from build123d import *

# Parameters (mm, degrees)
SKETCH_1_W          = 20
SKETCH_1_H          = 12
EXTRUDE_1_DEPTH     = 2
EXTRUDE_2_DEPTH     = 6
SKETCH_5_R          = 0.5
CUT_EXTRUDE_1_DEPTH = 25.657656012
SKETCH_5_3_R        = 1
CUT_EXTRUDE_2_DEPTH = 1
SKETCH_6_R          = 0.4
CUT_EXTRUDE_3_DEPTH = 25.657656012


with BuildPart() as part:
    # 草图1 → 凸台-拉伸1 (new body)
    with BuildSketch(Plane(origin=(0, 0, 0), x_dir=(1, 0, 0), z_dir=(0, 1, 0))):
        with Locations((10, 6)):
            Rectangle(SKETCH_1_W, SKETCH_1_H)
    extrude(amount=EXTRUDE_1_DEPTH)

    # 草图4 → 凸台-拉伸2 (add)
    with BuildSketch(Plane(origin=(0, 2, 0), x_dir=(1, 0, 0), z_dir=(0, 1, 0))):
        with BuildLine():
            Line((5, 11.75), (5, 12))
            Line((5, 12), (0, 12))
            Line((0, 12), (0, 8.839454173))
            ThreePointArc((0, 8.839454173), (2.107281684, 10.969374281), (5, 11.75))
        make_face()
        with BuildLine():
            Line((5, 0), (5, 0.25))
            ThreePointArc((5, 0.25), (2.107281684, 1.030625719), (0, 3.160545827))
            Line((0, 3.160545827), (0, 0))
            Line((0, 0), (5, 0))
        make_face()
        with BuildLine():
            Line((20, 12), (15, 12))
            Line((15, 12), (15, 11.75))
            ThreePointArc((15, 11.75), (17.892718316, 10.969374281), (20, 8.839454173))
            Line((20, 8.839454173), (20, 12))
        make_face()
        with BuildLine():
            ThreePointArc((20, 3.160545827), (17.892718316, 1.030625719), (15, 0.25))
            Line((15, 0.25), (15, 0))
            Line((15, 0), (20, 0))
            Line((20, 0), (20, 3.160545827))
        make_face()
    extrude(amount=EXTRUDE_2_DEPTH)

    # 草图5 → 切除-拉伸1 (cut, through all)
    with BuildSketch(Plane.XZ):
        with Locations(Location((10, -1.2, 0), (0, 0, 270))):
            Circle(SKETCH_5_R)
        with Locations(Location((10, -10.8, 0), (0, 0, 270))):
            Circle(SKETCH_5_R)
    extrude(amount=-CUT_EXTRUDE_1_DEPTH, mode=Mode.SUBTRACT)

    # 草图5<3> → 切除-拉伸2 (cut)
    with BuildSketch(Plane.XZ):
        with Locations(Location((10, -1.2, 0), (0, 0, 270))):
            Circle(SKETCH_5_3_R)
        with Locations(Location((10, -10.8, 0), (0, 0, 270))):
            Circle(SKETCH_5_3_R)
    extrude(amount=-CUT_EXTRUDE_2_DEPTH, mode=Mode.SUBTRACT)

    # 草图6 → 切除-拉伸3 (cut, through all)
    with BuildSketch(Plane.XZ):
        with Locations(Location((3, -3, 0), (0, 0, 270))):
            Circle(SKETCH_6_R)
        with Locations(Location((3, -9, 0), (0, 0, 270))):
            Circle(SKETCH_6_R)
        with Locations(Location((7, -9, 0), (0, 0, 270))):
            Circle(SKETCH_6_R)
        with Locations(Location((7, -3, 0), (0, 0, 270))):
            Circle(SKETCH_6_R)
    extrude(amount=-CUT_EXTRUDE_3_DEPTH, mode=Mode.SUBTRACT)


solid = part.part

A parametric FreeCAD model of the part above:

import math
import FreeCAD as App
import Part
import Sketcher
Q = App.Units.Quantity

doc = App.newDocument("Part")
body = doc.addObject("PartDesign::Body", "Body")

sketch1 = body.newObject("Sketcher::SketchObject", "Sketch")
sketch1.AttachmentSupport = (doc.getObject("XZ_Plane"), [""])
sketch1.MapMode = "FlatFace"
sketch1.addGeometry([
    Part.LineSegment(App.Vector(0, -12, 0), App.Vector(0, 0, 0)),
    Part.LineSegment(App.Vector(0, 0, 0), App.Vector(20, 0, 0)),
    Part.LineSegment(App.Vector(20, 0, 0), App.Vector(20, -12, 0)),
    Part.LineSegment(App.Vector(20, -12, 0), App.Vector(0, -12, 0)),
], False)
sketch1.addConstraint([
    Sketcher.Constraint("Coincident", 0, 2, 1, 1),
    Sketcher.Constraint("Coincident", 1, 2, 2, 1),
    Sketcher.Constraint("Coincident", 2, 2, 3, 1),
    Sketcher.Constraint("Coincident", 3, 2, 0, 1),
    Sketcher.Constraint("Vertical", 0),
    Sketcher.Constraint("Horizontal", 1),
    Sketcher.Constraint("Vertical", 2),
    Sketcher.Constraint("Horizontal", 3),
    Sketcher.Constraint("Coincident", 0, 2, -1, 1),
    Sketcher.Constraint("DistanceX", 1, 1, 1, 2, Q("20 mm")),
    Sketcher.Constraint("DistanceY", 0, 1, 0, 2, Q("12 mm")),
])
pad1 = body.newObject("PartDesign::Pad", "Pad")
pad1.Profile = sketch1
pad1.Length = 2
pad1.Reversed = True

sketch2 = body.newObject("Sketcher::SketchObject", "Sketch001")
sketch2.AttachmentSupport = (doc.getObject("XZ_Plane"), [""])
sketch2.MapMode = "FlatFace"
sketch2.AttachmentOffset = App.Placement(App.Vector(0, 0, -2), App.Rotation())
sketch2.addGeometry([
    Part.LineSegment(App.Vector(5, -11.75, 0), App.Vector(5, -12, 0)),
    Part.LineSegment(App.Vector(5, -12, 0), App.Vector(0, -12, 0)),
    Part.LineSegment(App.Vector(0, -12, 0), App.Vector(0, -8.84, 0)),
    Part.ArcOfCircle(Part.Circle(App.Vector(5, -6, 0), App.Vector(0, 0, 1), 5.75), math.radians(-150), math.radians(-90)),
    Part.LineSegment(App.Vector(5, 0, 0), App.Vector(5, -0.25, 0)),
    Part.ArcOfCircle(Part.Circle(App.Vector(5, -6, 0), App.Vector(0, 0, 1), 5.75), math.radians(90), math.radians(150)),
    Part.LineSegment(App.Vector(0, -3.16, 0), App.Vector(0, 0, 0)),
    Part.LineSegment(App.Vector(0, 0, 0), App.Vector(5, 0, 0)),
    Part.LineSegment(App.Vector(20, -12, 0), App.Vector(15, -12, 0)),
    Part.LineSegment(App.Vector(15, -12, 0), App.Vector(15, -11.75, 0)),
    Part.ArcOfCircle(Part.Circle(App.Vector(15, -6, 0), App.Vector(0, 0, 1), 5.75), math.radians(-90), math.radians(-30)),
    Part.LineSegment(App.Vector(20, -8.84, 0), App.Vector(20, -12, 0)),
    Part.ArcOfCircle(Part.Circle(App.Vector(15, -6, 0), App.Vector(0, 0, 1), 5.75), math.radians(30), math.radians(90)),
    Part.LineSegment(App.Vector(15, -0.25, 0), App.Vector(15, 0, 0)),
    Part.LineSegment(App.Vector(15, 0, 0), App.Vector(20, 0, 0)),
    Part.LineSegment(App.Vector(20, 0, 0), App.Vector(20, -3.16, 0)),
], False)
sketch2.addConstraint([
    Sketcher.Constraint("Coincident", 0, 2, 1, 1),
    Sketcher.Constraint("Coincident", 1, 2, 2, 1),
    Sketcher.Constraint("Coincident", 2, 2, 3, 1),
    Sketcher.Constraint("Coincident", 3, 2, 0, 1),
    Sketcher.Constraint("Coincident", 4, 2, 5, 1),
    Sketcher.Constraint("Coincident", 5, 2, 6, 1),
    Sketcher.Constraint("Coincident", 6, 2, 7, 1),
    Sketcher.Constraint("Coincident", 7, 2, 4, 1),
    Sketcher.Constraint("Coincident", 8, 2, 9, 1),
    Sketcher.Constraint("Coincident", 9, 2, 10, 1),
    Sketcher.Constraint("Coincident", 10, 2, 11, 1),
    Sketcher.Constraint("Coincident", 11, 2, 8, 1),
    Sketcher.Constraint("Coincident", 12, 2, 13, 1),
    Sketcher.Constraint("Coincident", 13, 2, 14, 1),
    Sketcher.Constraint("Coincident", 14, 2, 15, 1),
    Sketcher.Constraint("Coincident", 15, 2, 12, 1),
    Sketcher.Constraint("Vertical", 0),
    Sketcher.Constraint("Horizontal", 1),
    Sketcher.Constraint("Vertical", 2),
    Sketcher.Constraint("Vertical", 4),
    Sketcher.Constraint("Vertical", 6),
    Sketcher.Constraint("Horizontal", 7),
    Sketcher.Constraint("Horizontal", 8),
    Sketcher.Constraint("Vertical", 9),
    Sketcher.Constraint("Vertical", 11),
    Sketcher.Constraint("Vertical", 13),
    Sketcher.Constraint("Horizontal", 14),
    Sketcher.Constraint("Vertical", 15),
    Sketcher.Constraint("Coincident", 6, 2, -1, 1),
    Sketcher.Constraint("Coincident", 5, 3, 3, 3),
    Sketcher.Constraint("Coincident", 12, 3, 10, 3),
    Sketcher.Constraint("Equal", 3, 5),
    Sketcher.Constraint("Equal", 5, 10),
    Sketcher.Constraint("Equal", 10, 12),
    Sketcher.Constraint("PointOnObject", 1, 2, -2),
    Sketcher.Constraint("PointOnObject", 13, 2, -1),
    Sketcher.Constraint("Horizontal", 5, 3, 10, 3),
    Sketcher.Constraint("Horizontal", 1, 2, 8, 2),
    Sketcher.Constraint("Horizontal", 2, 2, 10, 2),
    Sketcher.Constraint("Horizontal", 5, 2, 15, 2),
    Sketcher.Constraint("Vertical", 5, 3, 0, 2),
    Sketcher.Constraint("Vertical", 3, 2, 4, 2),
    Sketcher.Constraint("Vertical", 12, 3, 8, 2),
    Sketcher.Constraint("Vertical", 9, 2, 12, 2),
    Sketcher.Constraint("Equal", 0, 4),
    Sketcher.Constraint("DistanceX", 1, 2, 1, 1, Q("5 mm")),
    Sketcher.Constraint("Radius", 3, Q("5.75 mm")),
    Sketcher.Constraint("DistanceY", 3, 3, -1, 1, Q("6 mm")),
    Sketcher.Constraint("DistanceX", -1, 1, 10, 3, Q("15 mm")),
])
pad2 = body.newObject("PartDesign::Pad", "Pad001")
pad2.Profile = sketch2
pad2.Length = 6
pad2.Reversed = True

sketch3 = body.newObject("Sketcher::SketchObject", "Sketch002")
sketch3.AttachmentSupport = (doc.getObject("XZ_Plane"), [""])
sketch3.MapMode = "FlatFace"
sketch3.addGeometry([
    Part.Circle(App.Vector(10, -1.2, 0), App.Vector(0, 0, 1), 0.5),
    Part.Circle(App.Vector(10, -10.8, 0), App.Vector(0, 0, 1), 0.5),
], False)
sketch3.addConstraint([
    Sketcher.Constraint("Equal", 0, 1),
    Sketcher.Constraint("Vertical", 0, 3, 1, 3),
    Sketcher.Constraint("Diameter", 0, Q("1 mm")),
    Sketcher.Constraint("DistanceX", -1, 1, 0, 3, Q("10 mm")),
    Sketcher.Constraint("DistanceY", 0, 3, -1, 1, Q("1.2 mm")),
    Sketcher.Constraint("DistanceY", 1, 3, -1, 1, Q("10.8 mm")),
])
pocket1 = body.newObject("PartDesign::Pocket", "Pocket")
pocket1.Profile = sketch3
pocket1.Type = "ThroughAll"

sketch4 = body.newObject("Sketcher::SketchObject", "Sketch003")
sketch4.AttachmentSupport = (doc.getObject("XZ_Plane"), [""])
sketch4.MapMode = "FlatFace"
sketch4.addGeometry([
    Part.Circle(App.Vector(10, -1.2, 0), App.Vector(0, 0, 1), 1),
    Part.Circle(App.Vector(10, -10.8, 0), App.Vector(0, 0, 1), 1),
], False)
sketch4.addConstraint([
    Sketcher.Constraint("Equal", 0, 1),
    Sketcher.Constraint("Vertical", 0, 3, 1, 3),
    Sketcher.Constraint("Diameter", 0, Q("2 mm")),
    Sketcher.Constraint("DistanceX", -1, 1, 0, 3, Q("10 mm")),
    Sketcher.Constraint("DistanceY", 0, 3, -1, 1, Q("1.2 mm")),
    Sketcher.Constraint("DistanceY", 1, 3, -1, 1, Q("10.8 mm")),
])
pocket2 = body.newObject("PartDesign::Pocket", "Pocket001")
pocket2.Profile = sketch4
pocket2.Length = 1

sketch5 = body.newObject("Sketcher::SketchObject", "Sketch004")
sketch5.AttachmentSupport = (doc.getObject("XZ_Plane"), [""])
sketch5.MapMode = "FlatFace"
sketch5.addGeometry([
    Part.Circle(App.Vector(3, -3, 0), App.Vector(0, 0, 1), 0.4),
    Part.Circle(App.Vector(3, -9, 0), App.Vector(0, 0, 1), 0.4),
    Part.Circle(App.Vector(7, -9, 0), App.Vector(0, 0, 1), 0.4),
    Part.Circle(App.Vector(7, -3, 0), App.Vector(0, 0, 1), 0.4),
], False)
sketch5.addConstraint([
    Sketcher.Constraint("Equal", 0, 1),
    Sketcher.Constraint("Equal", 1, 2),
    Sketcher.Constraint("Equal", 2, 3),
    Sketcher.Constraint("Horizontal", 1, 3, 2, 3),
    Sketcher.Constraint("Horizontal", 0, 3, 3, 3),
    Sketcher.Constraint("Vertical", 0, 3, 1, 3),
    Sketcher.Constraint("Vertical", 2, 3, 3, 3),
    Sketcher.Constraint("Diameter", 0, Q("0.8 mm")),
    Sketcher.Constraint("DistanceX", -1, 1, 0, 3, Q("3 mm")),
    Sketcher.Constraint("DistanceY", 0, 3, -1, 1, Q("3 mm")),
    Sketcher.Constraint("DistanceY", 1, 3, -1, 1, Q("9 mm")),
    Sketcher.Constraint("DistanceX", -1, 1, 2, 3, Q("7 mm")),
])
pocket3 = body.newObject("PartDesign::Pocket", "Pocket002")
pocket3.Profile = sketch5
pocket3.Type = "ThroughAll"

doc.recompute()
